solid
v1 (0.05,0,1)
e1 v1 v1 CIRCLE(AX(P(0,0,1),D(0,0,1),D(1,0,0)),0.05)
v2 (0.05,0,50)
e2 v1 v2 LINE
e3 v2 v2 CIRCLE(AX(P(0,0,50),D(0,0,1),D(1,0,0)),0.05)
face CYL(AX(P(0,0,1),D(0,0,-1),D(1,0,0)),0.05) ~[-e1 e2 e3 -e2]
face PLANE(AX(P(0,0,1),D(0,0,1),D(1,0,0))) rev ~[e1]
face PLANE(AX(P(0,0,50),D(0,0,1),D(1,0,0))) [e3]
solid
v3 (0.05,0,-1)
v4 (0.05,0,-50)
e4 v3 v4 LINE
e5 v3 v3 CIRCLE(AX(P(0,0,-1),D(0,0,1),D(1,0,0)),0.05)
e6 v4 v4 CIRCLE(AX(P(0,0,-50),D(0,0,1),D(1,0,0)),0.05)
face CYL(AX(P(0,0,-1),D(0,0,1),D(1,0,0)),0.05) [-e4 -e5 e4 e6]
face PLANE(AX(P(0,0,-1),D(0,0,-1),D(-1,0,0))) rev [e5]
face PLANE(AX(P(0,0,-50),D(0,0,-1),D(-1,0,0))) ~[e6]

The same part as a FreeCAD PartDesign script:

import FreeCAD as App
import Part
import Sketcher
from FreeCAD import Vector

doc = App.newDocument("Part")
body = doc.addObject("PartDesign::Body", "Body")

# Sketch on XY plane
sketch1 = body.newObject("Sketcher::SketchObject", "Sketch")
sketch1.AttachmentSupport = (doc.getObject("XY_Plane"), [""])
sketch1.MapMode = "FlatFace"
sketch1.AttachmentOffset = App.Placement(Vector(0, 0, 1), App.Rotation())
sketch1.addGeometry(Part.Circle(Vector(0, 0, 0), Vector(0, 0, 1), 0.05), False)
sketch1.addConstraint([
    Sketcher.Constraint("Coincident", 0, 3, -1, 1),
    Sketcher.Constraint("Diameter", 0, 0.1),
])
pad1 = body.newObject("PartDesign::Pad", "Pad")
pad1.Profile = sketch1
pad1.Length = 49
body2 = doc.addObject("PartDesign::Body", "Body001")
doc.recompute()

mirroring = doc.addObject("Part::Mirroring", "Mirroring")
mirroring.Source = body
mirroring.Base = Vector(0, 0, 0)
mirroring.Normal = Vector(0, 0, 1)
body2.BaseFeature = mirroring
doc.recompute()
mirroring.Visibility = False

doc.recompute()
